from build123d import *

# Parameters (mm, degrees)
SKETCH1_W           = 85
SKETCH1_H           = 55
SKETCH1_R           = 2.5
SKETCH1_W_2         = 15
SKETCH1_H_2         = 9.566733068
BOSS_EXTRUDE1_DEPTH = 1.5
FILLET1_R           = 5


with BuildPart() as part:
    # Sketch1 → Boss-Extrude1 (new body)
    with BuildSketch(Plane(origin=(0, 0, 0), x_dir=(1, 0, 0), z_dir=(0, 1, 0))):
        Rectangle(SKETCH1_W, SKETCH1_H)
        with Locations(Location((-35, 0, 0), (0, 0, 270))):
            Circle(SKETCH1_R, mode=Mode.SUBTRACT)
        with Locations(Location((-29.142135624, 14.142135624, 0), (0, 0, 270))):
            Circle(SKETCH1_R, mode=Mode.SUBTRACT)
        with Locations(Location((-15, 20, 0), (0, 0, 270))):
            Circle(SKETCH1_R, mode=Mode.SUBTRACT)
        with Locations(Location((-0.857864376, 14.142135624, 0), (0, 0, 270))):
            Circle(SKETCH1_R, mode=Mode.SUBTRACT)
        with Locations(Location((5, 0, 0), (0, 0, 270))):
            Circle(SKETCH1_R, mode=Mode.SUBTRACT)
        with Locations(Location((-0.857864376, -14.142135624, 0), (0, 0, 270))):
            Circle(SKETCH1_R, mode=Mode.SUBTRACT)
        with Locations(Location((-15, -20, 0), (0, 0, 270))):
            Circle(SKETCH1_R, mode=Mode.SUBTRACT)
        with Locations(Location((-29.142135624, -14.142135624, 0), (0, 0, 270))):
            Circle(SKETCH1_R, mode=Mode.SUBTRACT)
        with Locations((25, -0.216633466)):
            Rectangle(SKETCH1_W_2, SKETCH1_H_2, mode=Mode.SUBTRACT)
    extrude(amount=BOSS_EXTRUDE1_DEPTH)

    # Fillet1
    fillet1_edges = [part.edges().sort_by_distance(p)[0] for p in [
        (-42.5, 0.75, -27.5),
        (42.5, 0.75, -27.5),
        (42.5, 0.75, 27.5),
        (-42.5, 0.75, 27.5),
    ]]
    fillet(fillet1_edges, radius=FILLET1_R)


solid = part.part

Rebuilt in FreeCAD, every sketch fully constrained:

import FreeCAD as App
import Part
import Sketcher
from FreeCAD import Vector
Q = App.Units.Quantity


def edges_at(feature, points):
    """Names of the edges that pass closest to the given points."""
    edges = feature.Shape.Edges
    near = lambda p: min(range(len(edges)), key=lambda i: edges[i].distToShape(Part.Vertex(*p))[0])
    return sorted({f"Edge{near(p) + 1}" for p in points})


def add_polygon(sketch, points):
    """Adds a closed chain of lines whose ends are joined by coincident constraints."""
    first, n = sketch.GeometryCount, len(points)
    for a, b in zip(points, points[1:] + points[:1]):
        sketch.addGeometry(Part.LineSegment(App.Vector(*a, 0), App.Vector(*b, 0)), False)
    for i in range(n):
        sketch.addConstraint(Sketcher.Constraint("Coincident", first + i, 2, first + (i + 1) % n, 1))

doc = App.newDocument("Part")
body = doc.addObject("PartDesign::Body", "Body")

# Sketch on XZ plane
sketch1 = body.newObject("Sketcher::SketchObject", "Sketch")
sketch1.AttachmentSupport = (doc.getObject("XZ_Plane"), [""])
sketch1.MapMode = "FlatFace"
add_polygon(sketch1, [(-42.5, -27.5), (-42.5, 27.5), (42.5, 27.5), (42.5, -27.5)])  # lines 0-3
sketch1.addGeometry(Part.Circle(Vector(-29.1, 14.1, 0), Vector(0, 0, 1), 2.5), False)  # 4
sketch1.addGeometry(Part.Circle(Vector(-15, 20, 0), Vector(0, 0, 1), 2.5), False)  # 5
sketch1.addGeometry(Part.Circle(Vector(-0.9, 14.1, 0), Vector(0, 0, 1), 2.5), False)  # 6
add_polygon(sketch1, [(32.5, 5), (17.5, 5), (17.5, -4.6), (32.5, -4.6)])  # lines 7-10
sketch1.addGeometry(Part.Circle(Vector(-35, 0, 0), Vector(0, 0, 1), 2.5), False)  # 11
sketch1.addGeometry(Part.Circle(Vector(-29.1, -14.1, 0), Vector(0, 0, 1), 2.5), False)  # 12
sketch1.addGeometry(Part.Circle(Vector(-15, -20, 0), Vector(0, 0, 1), 2.5), False)  # 13
sketch1.addGeometry(Part.Circle(Vector(5, 0, 0), Vector(0, 0, 1), 2.5), False)  # 14
sketch1.addGeometry(Part.Circle(Vector(-0.9, -14.1, 0), Vector(0, 0, 1), 2.5), False)  # 15
sketch1.addConstraint([
    Sketcher.Constraint("Vertical", 0),
    Sketcher.Constraint("Horizontal", 1),
    Sketcher.Constraint("Vertical", 2),
    Sketcher.Constraint("Horizontal", 3),
    Sketcher.Constraint("Horizontal", 7),
    Sketcher.Constraint("Vertical", 8),
    Sketcher.Constraint("Horizontal", 9),
    Sketcher.Constraint("Vertical", 10),
    Sketcher.Constraint("Equal", 4, 5),
    Sketcher.Constraint("Equal", 5, 6),
    Sketcher.Constraint("Equal", 6, 11),
    Sketcher.Constraint("Equal", 11, 12),
    Sketcher.Constraint("Equal", 12, 13),
    Sketcher.Constraint("Equal", 13, 14),
    Sketcher.Constraint("Equal", 14, 15),
    Sketcher.Constraint("Symmetric", 0, 2, 2, 2, -1, 1),
    Sketcher.Constraint("Symmetric", 4, 3, 12, 3, -1),
    Sketcher.Constraint("Symmetric", 5, 3, 13, 3, -1),
    Sketcher.Constraint("Symmetric", 6, 3, 15, 3, -1),
    Sketcher.Constraint("PointOnObject", 11, 3, -1),
    Sketcher.Constraint("PointOnObject", 14, 3, -1),
    Sketcher.Constraint("Horizontal", 4, 3, 6, 3),
    Sketcher.Constraint("Diameter", 4, Q("5 mm")),
    Sketcher.Constraint("DistanceX", 1, 1, 1, 2, Q("85 mm")),
    Sketcher.Constraint("DistanceX", 7, 2, 7, 1, Q("15 mm")),
    Sketcher.Constraint("DistanceY", 0, 1, 0, 2, Q("55 mm")),
    Sketcher.Constraint("DistanceX", 5, 3, -1, 1, Q("15 mm")),
    Sketcher.Constraint("DistanceY", -1, 1, 5, 3, Q("20 mm")),
    Sketcher.Constraint("DistanceX", 11, 3, -1, 1, Q("35 mm")),
    Sketcher.Constraint("DistanceX", -1, 1, 14, 3, Q("5 mm")),
    Sketcher.Constraint("DistanceY", -1, 1, 7, 2, Q("5 mm")),
    Sketcher.Constraint("DistanceX", 7, 2, 1, 2, Q("25 mm")),
    Sketcher.Constraint("DistanceY", 8, 2, 8, 1, Q("9.566733 mm")),
    Sketcher.Constraint("DistanceX", 4, 3, 6, 3, Q("28.284271 mm")),
    Sketcher.Constraint("DistanceY", 12, 3, 4, 3, Q("28.284271 mm")),
    Sketcher.Constraint("DistanceX", 4, 3, -1, 1, Q("29.142136 mm")),
])
pad1 = body.newObject("PartDesign::Pad", "Pad")
pad1.Profile = sketch1
pad1.Length = 1.5
pad1.Reversed = True
doc.recompute()

fillet = body.newObject("PartDesign::Fillet", "Fillet")
fillet.Base = (pad1, edges_at(pad1, [
    (-42.5, 0.75, -27.5),
    (42.5, 0.75, -27.5),
    (42.5, 0.75, 27.5),
    (-42.5, 0.75, 27.5),
]))
fillet.Radius = 5

doc.recompute()
